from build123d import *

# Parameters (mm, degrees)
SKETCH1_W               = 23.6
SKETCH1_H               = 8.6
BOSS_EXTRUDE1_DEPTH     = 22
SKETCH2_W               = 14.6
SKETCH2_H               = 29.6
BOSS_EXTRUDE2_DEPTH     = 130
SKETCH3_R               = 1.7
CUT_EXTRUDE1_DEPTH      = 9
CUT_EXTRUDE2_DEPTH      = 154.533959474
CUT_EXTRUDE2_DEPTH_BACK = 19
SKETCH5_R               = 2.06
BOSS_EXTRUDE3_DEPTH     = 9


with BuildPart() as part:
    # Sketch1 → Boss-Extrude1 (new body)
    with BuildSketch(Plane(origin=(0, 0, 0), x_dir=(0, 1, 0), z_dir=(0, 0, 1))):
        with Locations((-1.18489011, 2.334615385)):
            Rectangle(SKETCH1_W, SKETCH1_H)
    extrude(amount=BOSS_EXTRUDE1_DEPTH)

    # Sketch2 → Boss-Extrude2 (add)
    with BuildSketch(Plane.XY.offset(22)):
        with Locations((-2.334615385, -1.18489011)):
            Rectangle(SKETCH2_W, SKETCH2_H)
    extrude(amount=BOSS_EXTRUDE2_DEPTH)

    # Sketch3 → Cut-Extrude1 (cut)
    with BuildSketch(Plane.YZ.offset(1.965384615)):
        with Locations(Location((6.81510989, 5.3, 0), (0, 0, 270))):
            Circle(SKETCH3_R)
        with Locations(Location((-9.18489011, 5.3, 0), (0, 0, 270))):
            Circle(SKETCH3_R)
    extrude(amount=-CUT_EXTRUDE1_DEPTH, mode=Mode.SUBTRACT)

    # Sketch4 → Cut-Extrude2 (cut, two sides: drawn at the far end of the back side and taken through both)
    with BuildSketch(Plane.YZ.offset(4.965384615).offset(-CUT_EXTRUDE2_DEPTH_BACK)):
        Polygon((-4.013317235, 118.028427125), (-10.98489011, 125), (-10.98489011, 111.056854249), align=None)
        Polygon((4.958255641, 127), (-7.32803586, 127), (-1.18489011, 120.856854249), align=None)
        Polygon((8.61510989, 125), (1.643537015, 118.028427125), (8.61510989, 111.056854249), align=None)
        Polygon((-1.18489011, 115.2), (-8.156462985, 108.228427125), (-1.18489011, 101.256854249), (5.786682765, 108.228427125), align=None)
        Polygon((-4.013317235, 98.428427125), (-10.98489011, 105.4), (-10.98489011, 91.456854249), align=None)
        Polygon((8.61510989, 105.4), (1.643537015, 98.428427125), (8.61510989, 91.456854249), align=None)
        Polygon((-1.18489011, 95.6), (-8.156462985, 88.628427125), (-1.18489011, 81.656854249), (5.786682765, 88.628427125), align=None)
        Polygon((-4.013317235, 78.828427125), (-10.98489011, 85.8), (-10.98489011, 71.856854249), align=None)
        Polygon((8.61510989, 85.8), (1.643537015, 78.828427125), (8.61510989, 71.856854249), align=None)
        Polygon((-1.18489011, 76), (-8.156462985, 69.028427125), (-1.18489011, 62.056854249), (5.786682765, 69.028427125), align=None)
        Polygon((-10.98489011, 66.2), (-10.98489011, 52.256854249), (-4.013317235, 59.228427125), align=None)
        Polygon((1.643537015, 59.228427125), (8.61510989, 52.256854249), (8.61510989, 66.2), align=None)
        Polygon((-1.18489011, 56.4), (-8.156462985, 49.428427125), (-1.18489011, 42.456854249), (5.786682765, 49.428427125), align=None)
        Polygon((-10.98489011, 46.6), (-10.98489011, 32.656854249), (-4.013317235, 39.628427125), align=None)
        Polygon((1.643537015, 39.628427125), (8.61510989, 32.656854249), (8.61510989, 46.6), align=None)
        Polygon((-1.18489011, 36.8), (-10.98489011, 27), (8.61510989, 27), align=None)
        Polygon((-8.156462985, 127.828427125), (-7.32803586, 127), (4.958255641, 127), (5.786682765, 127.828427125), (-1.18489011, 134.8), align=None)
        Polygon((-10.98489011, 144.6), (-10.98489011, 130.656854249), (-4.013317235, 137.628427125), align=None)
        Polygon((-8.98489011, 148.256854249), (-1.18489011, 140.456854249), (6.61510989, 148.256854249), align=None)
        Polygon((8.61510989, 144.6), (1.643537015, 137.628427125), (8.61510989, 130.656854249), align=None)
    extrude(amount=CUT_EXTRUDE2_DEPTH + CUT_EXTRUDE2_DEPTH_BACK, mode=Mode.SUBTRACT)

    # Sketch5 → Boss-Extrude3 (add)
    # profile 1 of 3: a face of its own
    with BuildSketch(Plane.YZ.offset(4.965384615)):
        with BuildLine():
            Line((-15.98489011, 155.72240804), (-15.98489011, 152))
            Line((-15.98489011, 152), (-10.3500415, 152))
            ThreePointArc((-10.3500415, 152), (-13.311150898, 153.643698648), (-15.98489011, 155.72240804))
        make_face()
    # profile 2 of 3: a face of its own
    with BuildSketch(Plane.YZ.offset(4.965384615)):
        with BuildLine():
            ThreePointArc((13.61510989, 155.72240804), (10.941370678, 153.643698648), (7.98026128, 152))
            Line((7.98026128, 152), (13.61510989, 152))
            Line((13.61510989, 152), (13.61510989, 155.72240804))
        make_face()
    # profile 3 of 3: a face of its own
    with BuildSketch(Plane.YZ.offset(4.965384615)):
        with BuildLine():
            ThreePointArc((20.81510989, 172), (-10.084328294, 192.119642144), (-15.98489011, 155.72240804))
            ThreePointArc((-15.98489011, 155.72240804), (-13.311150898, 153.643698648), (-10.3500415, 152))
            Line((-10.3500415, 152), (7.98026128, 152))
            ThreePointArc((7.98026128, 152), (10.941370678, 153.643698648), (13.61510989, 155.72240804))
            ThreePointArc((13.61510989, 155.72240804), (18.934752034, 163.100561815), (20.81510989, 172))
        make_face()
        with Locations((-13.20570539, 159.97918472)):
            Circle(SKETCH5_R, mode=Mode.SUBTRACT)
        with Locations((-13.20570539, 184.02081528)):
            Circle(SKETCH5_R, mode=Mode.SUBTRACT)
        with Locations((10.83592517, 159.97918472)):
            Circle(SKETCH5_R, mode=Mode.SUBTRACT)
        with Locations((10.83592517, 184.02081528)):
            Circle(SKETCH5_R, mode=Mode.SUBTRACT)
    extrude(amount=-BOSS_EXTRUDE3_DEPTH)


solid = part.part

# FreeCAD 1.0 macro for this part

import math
import FreeCAD as App
import Part
import Sketcher
from FreeCAD import Vector

doc = App.newDocument("Part")
params = doc.addObject("Spreadsheet::Sheet", "Params")
for row, (alias, value) in enumerate([
    ("sketch1_width", "8.6 mm"),
    ("sketch1_height", "23.6 mm"),
    ("pad1_length", "22 mm"),
    ("sketch2_width", "14.6 mm"),
    ("sketch2_height", "29.6 mm"),
    ("pad2_length", "130 mm"),
    ("sketch3_diameter", "3.4 mm"),
    ("pocket1_length", "9 mm"),
    ("sketch4_width", "19.6 mm"),
    ("sketch4_width2", "15.6 mm"),
    ("sketch5_radius", "22 mm"),
    ("sketch5_diameter", "4.12 mm"),
    ("sketch5_width", "29.6 mm"),
    ("pad3_length", "9 mm"),
], start=1):
    params.set(f"A{row}", alias)
    params.set(f"B{row}", "=" + value)
    params.setAlias(f"B{row}", alias)

body = doc.addObject("PartDesign::Body", "Body")

# Sketch on XY plane
sketch1 = body.newObject("Sketcher::SketchObject", "Sketch")
sketch1.AttachmentSupport = (doc.getObject("XY_Plane"), [""])
sketch1.MapMode = "FlatFace"
sketch1.addGeometry([
    Part.LineSegment(Vector(-7, -13, 0), Vector(2, -13, 0)),
    Part.LineSegment(Vector(2, -13, 0), Vector(2, 11, 0)),
    Part.LineSegment(Vector(2, 11, 0), Vector(-7, 11, 0)),
    Part.LineSegment(Vector(-7, 11, 0), Vector(-7, -13, 0)),
], False)
sketch1.addConstraint([
    Sketcher.Constraint("Coincident", 0, 2, 1, 1),
    Sketcher.Constraint("Coincident", 1, 2, 2, 1),
    Sketcher.Constraint("Coincident", 2, 2, 3, 1),
    Sketcher.Constraint("Coincident", 3, 2, 0, 1),
    Sketcher.Constraint("Horizontal", 0),
    Sketcher.Constraint("Vertical", 1),
    Sketcher.Constraint("Horizontal", 2),
    Sketcher.Constraint("Vertical", 3),
    Sketcher.Constraint("DistanceX", 0, 1, 0, 2, 8.6),
    Sketcher.Constraint("DistanceY", 1, 1, 1, 2, 23.6),
    Sketcher.Constraint("DistanceY", 0, 2, -1, 1, 12.98489),
    Sketcher.Constraint("DistanceX", -1, 1, 0, 2, 1.965385),
])
sketch1.setExpression("Constraints[8]", "Params.sketch1_width")
sketch1.setExpression("Constraints[9]", "Params.sketch1_height")
pad1 = body.newObject("PartDesign::Pad", "Pad")
pad1.Profile = sketch1
pad1.setExpression("Length", "Params.pad1_length")

# Sketch on XY plane
sketch2 = body.newObject("Sketcher::SketchObject", "Sketch001")
sketch2.AttachmentSupport = (doc.getObject("XY_Plane"), [""])
sketch2.MapMode = "FlatFace"
sketch2.AttachmentOffset = App.Placement(Vector(0, 0, 22), App.Rotation())
sketch2.addGeometry([
    Part.LineSegment(Vector(-10, 14, 0), Vector(-10, -16, 0)),
    Part.LineSegment(Vector(-10, -16, 0), Vector(5, -16, 0)),
    Part.LineSegment(Vector(5, -16, 0), Vector(5, 14, 0)),
    Part.LineSegment(Vector(5, 14, 0), Vector(-10, 14, 0)),
], False)
sketch2.addConstraint([
    Sketcher.Constraint("Coincident", 0, 2, 1, 1),
    Sketcher.Constraint("Coincident", 1, 2, 2, 1),
    Sketcher.Constraint("Coincident", 2, 2, 3, 1),
    Sketcher.Constraint("Coincident", 3, 2, 0, 1),
    Sketcher.Constraint("Vertical", 0),
    Sketcher.Constraint("Horizontal", 1),
    Sketcher.Constraint("Vertical", 2),
    Sketcher.Constraint("Horizontal", 3),
    Sketcher.Constraint("DistanceX", 1, 1, 1, 2, 14.6),
    Sketcher.Constraint("DistanceY", 0, 2, 0, 1, 29.6),
    Sketcher.Constraint("DistanceY", 0, 2, -1, 1, 15.98489),
    Sketcher.Constraint("DistanceX", 0, 2, -1, 1, 9.634615),
])
sketch2.setExpression("Constraints[8]", "Params.sketch2_width")
sketch2.setExpression("Constraints[9]", "Params.sketch2_height")
pad2 = body.newObject("PartDesign::Pad", "Pad001")
pad2.Profile = sketch2
pad2.setExpression("Length", "Params.pad2_length")

# Sketch on YZ plane
sketch3 = body.newObject("Sketcher::SketchObject", "Sketch002")
sketch3.AttachmentSupport = (doc.getObject("YZ_Plane"), [""])
sketch3.MapMode = "FlatFace"
sketch3.AttachmentOffset = App.Placement(Vector(0, 0, 1.965385), App.Rotation())
sketch3.addGeometry([
    Part.Circle(Vector(6.8, 5.3, 0), Vector(0, 0, 1), 1.7),
    Part.Circle(Vector(-9.2, 5.3, 0), Vector(0, 0, 1), 1.7),
], False)
sketch3.addConstraint([
    Sketcher.Constraint("Equal", 0, 1),
    Sketcher.Constraint("Horizontal", 0, 3, 1, 3),
    Sketcher.Constraint("Diameter", 0, 3.4),
    Sketcher.Constraint("DistanceX", 1, 3, 0, 3, 16.0),
    Sketcher.Constraint("DistanceY", -1, 1, 0, 3, 5.3),
    Sketcher.Constraint("DistanceX", -1, 1, 0, 3, 6.81511),
])
sketch3.setExpression("Constraints[2]", "Params.sketch3_diameter")
pocket1 = body.newObject("PartDesign::Pocket", "Pocket")
pocket1.Profile = sketch3
pocket1.setExpression("Length", "Params.pocket1_length")

# Sketch on YZ plane
sketch4 = body.newObject("Sketcher::SketchObject", "Sketch003")
sketch4.AttachmentSupport = (doc.getObject("YZ_Plane"), [""])
sketch4.MapMode = "FlatFace"
sketch4.AttachmentOffset = App.Placement(Vector(0, 0, 4.965385), App.Rotation())
sketch4.addGeometry([
    Part.LineSegment(Vector(-4, 118, 0), Vector(-11, 125, 0)),  # 0
    Part.LineSegment(Vector(-11, 125, 0), Vector(-11, 111.1, 0)),  # 1
    Part.LineSegment(Vector(-11, 111.1, 0), Vector(-4, 118, 0)),  # 2
    Part.LineSegment(Vector(-7.3, 127, 0), Vector(-1.2, 120.9, 0)),  # 3
    Part.LineSegment(Vector(-1.2, 120.9, 0), Vector(5, 127, 0)),  # 4
    Part.LineSegment(Vector(5, 127, 0), Vector(5.8, 127.8, 0)),  # 5
    Part.LineSegment(Vector(5.8, 127.8, 0), Vector(-1.2, 134.8, 0)),  # 6
    Part.LineSegment(Vector(-1.2, 134.8, 0), Vector(-8.2, 127.8, 0)),  # 7
    Part.LineSegment(Vector(-8.2, 127.8, 0), Vector(-7.3, 127, 0)),  # 8
    Part.LineSegment(Vector(8.6, 125, 0), Vector(1.6, 118, 0)),  # 9
    Part.LineSegment(Vector(1.6, 118, 0), Vector(8.6, 111.1, 0)),  # 10
    Part.LineSegment(Vector(8.6, 111.1, 0), Vector(8.6, 125, 0)),  # 11
    Part.LineSegment(Vector(-1.2, 115.2, 0), Vector(-8.2, 108.2, 0)),  # 12
    Part.LineSegment(Vector(-8.2, 108.2, 0), Vector(-1.2, 101.3, 0)),  # 13
    Part.LineSegment(Vector(-1.2, 101.3, 0), Vector(5.8, 108.2, 0)),  # 14
    Part.LineSegment(Vector(5.8, 108.2, 0), Vector(-1.2, 115.2, 0)),  # 15
    Part.LineSegment(Vector(-4, 98.4, 0), Vector(-11, 105.4, 0)),  # 16
    Part.LineSegment(Vector(-11, 105.4, 0), Vector(-11, 91.5, 0)),  # 17
    Part.LineSegment(Vector(-11, 91.5, 0), Vector(-4, 98.4, 0)),  # 18
    Part.LineSegment(Vector(8.6, 105.4, 0), Vector(1.6, 98.4, 0)),  # 19
    Part.LineSegment(Vector(1.6, 98.4, 0), Vector(8.6, 91.5, 0)),  # 20
    Part.LineSegment(Vector(8.6, 91.5, 0), Vector(8.6, 105.4, 0)),  # 21
    Part.LineSegment(Vector(-1.2, 95.6, 0), Vector(-8.2, 88.6, 0)),  # 22
    Part.LineSegment(Vector(-8.2, 88.6, 0), Vector(-1.2, 81.7, 0)),  # 23
    Part.LineSegment(Vector(-1.2, 81.7, 0), Vector(5.8, 88.6, 0)),  # 24
    Part.LineSegment(Vector(5.8, 88.6, 0), Vector(-1.2, 95.6, 0)),  # 25
    Part.LineSegment(Vector(-4, 78.8, 0), Vector(-11, 85.8, 0)),  # 26
    Part.LineSegment(Vector(-11, 85.8, 0), Vector(-11, 71.9, 0)),  # 27
    Part.LineSegment(Vector(-11, 71.9, 0), Vector(-4, 78.8, 0)),  # 28
    Part.LineSegment(Vector(8.6, 85.8, 0), Vector(1.6, 78.8, 0)),  # 29
    Part.LineSegment(Vector(1.6, 78.8, 0), Vector(8.6, 71.9, 0)),  # 30
    Part.LineSegment(Vector(8.6, 71.9, 0), Vector(8.6, 85.8, 0)),  # 31
    Part.LineSegment(Vector(-1.2, 76, 0), Vector(-8.2, 69, 0)),  # 32
    Part.LineSegment(Vector(-8.2, 69, 0), Vector(-1.2, 62.1, 0)),  # 33
    Part.LineSegment(Vector(-1.2, 62.1, 0), Vector(5.8, 69, 0)),  # 34
    Part.LineSegment(Vector(5.8, 69, 0), Vector(-1.2, 76, 0)),  # 35
    Part.LineSegment(Vector(-11, 66.2, 0), Vector(-11, 52.3, 0)),  # 36
    Part.LineSegment(Vector(-11, 52.3, 0), Vector(-4, 59.2, 0)),  # 37
    Part.LineSegment(Vector(-4, 59.2, 0), Vector(-11, 66.2, 0)),  # 38
    Part.LineSegment(Vector(1.6, 59.2, 0), Vector(8.6, 52.3, 0)),  # 39
    Part.LineSegment(Vector(8.6, 52.3, 0), Vector(8.6, 66.2, 0)),  # 40
    Part.LineSegment(Vector(8.6, 66.2, 0), Vector(1.6, 59.2, 0)),  # 41
    Part.LineSegment(Vector(-1.2, 56.4, 0), Vector(-8.2, 49.4, 0)),  # 42
    Part.LineSegment(Vector(-8.2, 49.4, 0), Vector(-1.2, 42.5, 0)),  # 43
    Part.LineSegment(Vector(-1.2, 42.5, 0), Vector(5.8, 49.4, 0)),  # 44
    Part.LineSegment(Vector(5.8, 49.4, 0), Vector(-1.2, 56.4, 0)),  # 45
    Part.LineSegment(Vector(-11, 46.6, 0), Vector(-11, 32.7, 0)),  # 46
    Part.LineSegment(Vector(-11, 32.7, 0), Vector(-4, 39.6, 0)),  # 47
    Part.LineSegment(Vector(-4, 39.6, 0), Vector(-11, 46.6, 0)),  # 48
    Part.LineSegment(Vector(1.6, 39.6, 0), Vector(8.6, 32.7, 0)),  # 49
    Part.LineSegment(Vector(8.6, 32.7, 0), Vector(8.6, 46.6, 0)),  # 50
    Part.LineSegment(Vector(8.6, 46.6, 0), Vector(1.6, 39.6, 0)),  # 51
    Part.LineSegment(Vector(-1.2, 36.8, 0), Vector(-11, 27, 0)),  # 52
    Part.LineSegment(Vector(-11, 27, 0), Vector(8.6, 27, 0)),  # 53
    Part.LineSegment(Vector(8.6, 27, 0), Vector(-1.2, 36.8, 0)),  # 54
    Part.LineSegment(Vector(-11, 144.6, 0), Vector(-11, 130.7, 0)),  # 55
    Part.LineSegment(Vector(-11, 130.7, 0), Vector(-4, 137.6, 0)),  # 56
    Part.LineSegment(Vector(-4, 137.6, 0), Vector(-11, 144.6, 0)),  # 57
    Part.LineSegment(Vector(-9, 148.3, 0), Vector(-1.2, 140.5, 0)),  # 58
    Part.LineSegment(Vector(-1.2, 140.5, 0), Vector(6.6, 148.3, 0)),  # 59
    Part.LineSegment(Vector(6.6, 148.3, 0), Vector(-9, 148.3, 0)),  # 60
    Part.LineSegment(Vector(8.6, 144.6, 0), Vector(1.6, 137.6, 0)),  # 61
    Part.LineSegment(Vector(1.6, 137.6, 0), Vector(8.6, 130.7, 0)),  # 62
    Part.LineSegment(Vector(8.6, 130.7, 0), Vector(8.6, 144.6, 0)),  # 63
], False)
sketch4.addConstraint([
    Sketcher.Constraint("Coincident", 0, 2, 1, 1),
    Sketcher.Constraint("Coincident", 1, 2, 2, 1),
    Sketcher.Constraint("Coincident", 2, 2, 0, 1),
    Sketcher.Constraint("Coincident", 3, 2, 4, 1),
    Sketcher.Constraint("Coincident", 4, 2, 5, 1),
    Sketcher.Constraint("Coincident", 5, 2, 6, 1),
    Sketcher.Constraint("Coincident", 6, 2, 7, 1),
    Sketcher.Constraint("Coincident", 7, 2, 8, 1),
    Sketcher.Constraint("Coincident", 8, 2, 3, 1),
    Sketcher.Constraint("Coincident", 9, 2, 10, 1),
    Sketcher.Constraint("Coincident", 10, 2, 11, 1),
    Sketcher.Constraint("Coincident", 11, 2, 9, 1),
    Sketcher.Constraint("Coincident", 12, 2, 13, 1),
    Sketcher.Constraint("Coincident", 13, 2, 14, 1),
    Sketcher.Constraint("Coincident", 14, 2, 15, 1),
    Sketcher.Constraint("Coincident", 15, 2, 12, 1),
    Sketcher.Constraint("Coincident", 16, 2, 17, 1),
    Sketcher.Constraint("Coincident", 17, 2, 18, 1),
    Sketcher.Constraint("Coincident", 18, 2, 16, 1),
    Sketcher.Constraint("Coincident", 19, 2, 20, 1),
    Sketcher.Constraint("Coincident", 20, 2, 21, 1),
    Sketcher.Constraint("Coincident", 21, 2, 19, 1),
    Sketcher.Constraint("Coincident", 22, 2, 23, 1),
    Sketcher.Constraint("Coincident", 23, 2, 24, 1),
    Sketcher.Constraint("Coincident", 24, 2, 25, 1),
    Sketcher.Constraint("Coincident", 25, 2, 22, 1),
    Sketcher.Constraint("Coincident", 26, 2, 27, 1),
    Sketcher.Constraint("Coincident", 27, 2, 28, 1),
    Sketcher.Constraint("Coincident", 28, 2, 26, 1),
    Sketcher.Constraint("Coincident", 29, 2, 30, 1),
    Sketcher.Constraint("Coincident", 30, 2, 31, 1),
    Sketcher.Constraint("Coincident", 31, 2, 29, 1),
    Sketcher.Constraint("Coincident", 32, 2, 33, 1),
    Sketcher.Constraint("Coincident", 33, 2, 34, 1),
    Sketcher.Constraint("Coincident", 34, 2, 35, 1),
    Sketcher.Constraint("Coincident", 35, 2, 32, 1),
    Sketcher.Constraint("Coincident", 36, 2, 37, 1),
    Sketcher.Constraint("Coincident", 37, 2, 38, 1),
    Sketcher.Constraint("Coincident", 38, 2, 36, 1),
    Sketcher.Constraint("Coincident", 39, 2, 40, 1),
    Sketcher.Constraint("Coincident", 40, 2, 41, 1),
    Sketcher.Constraint("Coincident", 41, 2, 39, 1),
    Sketcher.Constraint("Coincident", 42, 2, 43, 1),
    Sketcher.Constraint("Coincident", 43, 2, 44, 1),
    Sketcher.Constraint("Coincident", 44, 2, 45, 1),
    Sketcher.Constraint("Coincident", 45, 2, 42, 1),
    Sketcher.Constraint("Coincident", 46, 2, 47, 1),
    Sketcher.Constraint("Coincident", 47, 2, 48, 1),
    Sketcher.Constraint("Coincident", 48, 2, 46, 1),
    Sketcher.Constraint("Coincident", 49, 2, 50, 1),
    Sketcher.Constraint("Coincident", 50, 2, 51, 1),
    Sketcher.Constraint("Coincident", 51, 2, 49, 1),
    Sketcher.Constraint("Coincident", 52, 2, 53, 1),
    Sketcher.Constraint("Coincident", 53, 2, 54, 1),
    Sketcher.Constraint("Coincident", 54, 2, 52, 1),
    Sketcher.Constraint("Coincident", 55, 2, 56, 1),
    Sketcher.Constraint("Coincident", 56, 2, 57, 1),
    Sketcher.Constraint("Coincident", 57, 2, 55, 1),
    Sketcher.Constraint("Coincident", 58, 2, 59, 1),
    Sketcher.Constraint("Coincident", 59, 2, 60, 1),
    Sketcher.Constraint("Coincident", 60, 2, 58, 1),
    Sketcher.Constraint("Coincident", 61, 2, 62, 1),
    Sketcher.Constraint("Coincident", 62, 2, 63, 1),
    Sketcher.Constraint("Coincident", 63, 2, 61, 1),
    Sketcher.Constraint("Vertical", 1),
    Sketcher.Constraint("Vertical", 11),
    Sketcher.Constraint("Vertical", 17),
    Sketcher.Constraint("Vertical", 21),
    Sketcher.Constraint("Vertical", 27),
    Sketcher.Constraint("Vertical", 31),
    Sketcher.Constraint("Vertical", 36),
    Sketcher.Constraint("Vertical", 40),
    Sketcher.Constraint("Vertical", 46),
    Sketcher.Constraint("Vertical", 50),
    Sketcher.Constraint("Horizontal", 53),
    Sketcher.Constraint("Vertical", 55),
    Sketcher.Constraint("Horizontal", 60),
    Sketcher.Constraint("Vertical", 63),
    Sketcher.Constraint("Perpendicular", 0, 2),
    Sketcher.Constraint("Perpendicular", 2, 3),
    Sketcher.Constraint("Perpendicular", 3, 4),
    Sketcher.Constraint("Parallel", 4, 5),
    Sketcher.Constraint("Perpendicular", 5, 6),
    Sketcher.Constraint("Perpendicular", 6, 7),
    Sketcher.Constraint("Perpendicular", 7, 8),
    Sketcher.Constraint("Perpendicular", 8, 9),
    Sketcher.Constraint("Perpendicular", 9, 10),
    Sketcher.Constraint("Perpendicular", 10, 12),
    Sketcher.Constraint("Perpendicular", 12, 13),
    Sketcher.Constraint("Perpendicular", 13, 14),
    Sketcher.Constraint("Perpendicular", 14, 15),
    Sketcher.Constraint("Parallel", 15, 16),
    Sketcher.Constraint("Perpendicular", 16, 18),
    Sketcher.Constraint("Parallel", 18, 19),
    Sketcher.Constraint("Perpendicular", 19, 20),
    Sketcher.Constraint("Perpendicular", 20, 22),
    Sketcher.Constraint("Perpendicular", 22, 23),
    Sketcher.Constraint("Perpendicular", 23, 24),
    Sketcher.Constraint("Perpendicular", 24, 25),
    Sketcher.Constraint("Parallel", 25, 26),
    Sketcher.Constraint("Perpendicular", 26, 28),
    Sketcher.Constraint("Parallel", 28, 29),
    Sketcher.Constraint("Perpendicular", 29, 30),
    Sketcher.Constraint("Perpendicular", 30, 32),
    Sketcher.Constraint("Perpendicular", 32, 33),
    Sketcher.Constraint("Perpendicular", 33, 34),
    Sketcher.Constraint("Perpendicular", 34, 35),
    Sketcher.Constraint("Perpendicular", 35, 37),
    Sketcher.Constraint("Perpendicular", 37, 38),
    Sketcher.Constraint("Parallel", 38, 39),
    Sketcher.Constraint("Perpendicular", 39, 41),
    Sketcher.Constraint("Parallel", 41, 42),
    Sketcher.Constraint("Perpendicular", 42, 43),
    Sketcher.Constraint("Perpendicular", 43, 44),
    Sketcher.Constraint("Perpendicular", 44, 45),
    Sketcher.Constraint("Perpendicular", 45, 47),
    Sketcher.Constraint("Perpendicular", 47, 48),
    Sketcher.Constraint("Parallel", 48, 49),
    Sketcher.Constraint("Perpendicular", 49, 51),
    Sketcher.Constraint("Parallel", 51, 52),
    Sketcher.Constraint("Perpendicular", 52, 54),
    Sketcher.Constraint("Perpendicular", 54, 56),
    Sketcher.Constraint("Perpendicular", 56, 57),
    Sketcher.Constraint("Parallel", 57, 58),
    Sketcher.Constraint("Perpendicular", 58, 59),
    Sketcher.Constraint("Parallel", 59, 61),
    Sketcher.Constraint("Perpendicular", 61, 62),
    Sketcher.Constraint("Horizontal", 5, 2, 7, 2),
    Sketcher.Constraint("Horizontal", 4, 2, 8, 2),
    Sketcher.Constraint("Horizontal", 2, 2, 9, 2),
    Sketcher.Constraint("Horizontal", 1, 2, 10, 2),
    Sketcher.Constraint("Horizontal", 0, 2, 11, 2),
    Sketcher.Constraint("Horizontal", 12, 2, 14, 2),
    Sketcher.Constraint("Horizontal", 18, 2, 19, 2),
    Sketcher.Constraint("Horizontal", 17, 2, 20, 2),
    Sketcher.Constraint("Horizontal", 22, 2, 24, 2),
    Sketcher.Constraint("Horizontal", 28, 2, 29, 2),
    Sketcher.Constraint("Horizontal", 27, 2, 30, 2),
    Sketcher.Constraint("Horizontal", 32, 2, 34, 2),
    Sketcher.Constraint("Horizontal", 36, 2, 39, 2),
    Sketcher.Constraint("Horizontal", 38, 2, 40, 2),
    Sketcher.Constraint("Horizontal", 42, 2, 44, 2),
    Sketcher.Constraint("Horizontal", 46, 2, 49, 2),
    Sketcher.Constraint("Horizontal", 48, 2, 50, 2),
    Sketcher.Constraint("Horizontal", 56, 2, 61, 2),
    Sketcher.Constraint("Horizontal", 55, 2, 62, 2),
    Sketcher.Constraint("Vertical", 7, 2, 12, 2),
    Sketcher.Constraint("Vertical", 6, 2, 13, 2),
    Sketcher.Constraint("Vertical", 1, 2, 16, 2),
    Sketcher.Constraint("Vertical", 2, 2, 18, 2),
    Sketcher.Constraint("Vertical", 9, 2, 19, 2),
    Sketcher.Constraint("Vertical", 12, 2, 22, 2),
    Sketcher.Constraint("Vertical", 15, 2, 23, 2),
    Sketcher.Constraint("Vertical", 17, 2, 26, 2),
    Sketcher.Constraint("Vertical", 18, 2, 28, 2),
    Sketcher.Constraint("Vertical", 19, 2, 29, 2),
    Sketcher.Constraint("Vertical", 22, 2, 32, 2),
    Sketcher.Constraint("Vertical", 25, 2, 33, 2),
    Sketcher.Constraint("Vertical", 27, 2, 36, 2),
    Sketcher.Constraint("Vertical", 28, 2, 37, 2),
    Sketcher.Constraint("Vertical", 31, 2, 39, 2),
    Sketcher.Constraint("Vertical", 32, 2, 42, 2),
    Sketcher.Constraint("Vertical", 35, 2, 43, 2),
    Sketcher.Constraint("Vertical", 38, 2, 46, 2),
    Sketcher.Constraint("Vertical", 37, 2, 47, 2),
    Sketcher.Constraint("Vertical", 40, 2, 49, 2),
    Sketcher.Constraint("Vertical", 48, 2, 52, 2),
    Sketcher.Constraint("Vertical", 50, 2, 53, 2),
    Sketcher.Constraint("Vertical", 45, 2, 54, 2),
    Sketcher.Constraint("Vertical", 52, 2, 55, 2),
    Sketcher.Constraint("Vertical", 47, 2, 56, 2),
    Sketcher.Constraint("Vertical", 54, 2, 58, 2),
    Sketcher.Constraint("Vertical", 51, 2, 61, 2),
    Sketcher.Constraint("Equal", 2, 6),
    Sketcher.Constraint("DistanceX", 53, 1, 53, 2, 19.6),
    Sketcher.Constraint("DistanceX", 60, 2, 60, 1, 15.6),
    Sketcher.Constraint("DistanceY", -1, 1, 0, 2, 125.0),
    Sketcher.Constraint("DistanceY", -1, 1, 4, 2, 127.0),
    Sketcher.Constraint("DistanceY", -1, 1, 35, 2, 76.0),
    Sketcher.Constraint("DistanceY", -1, 1, 52, 2, 27.0),
    Sketcher.Constraint("DistanceY", -1, 1, 6, 2, 134.8),
    Sketcher.Constraint("DistanceY", -1, 1, 15, 2, 115.2),
    Sketcher.Constraint("DistanceY", -1, 1, 16, 2, 105.4),
    Sketcher.Constraint("DistanceY", -1, 1, 25, 2, 95.6),
    Sketcher.Constraint("DistanceY", -1, 1, 26, 2, 85.8),
    Sketcher.Constraint("DistanceY", -1, 1, 38, 2, 66.2),
    Sketcher.Constraint("DistanceY", -1, 1, 45, 2, 56.4),
    Sketcher.Constraint("DistanceY", -1, 1, 48, 2, 46.6),
    Sketcher.Constraint("DistanceY", -1, 1, 57, 2, 144.6),
    Sketcher.Constraint("Distance", 3, 8.68772),
    Sketcher.Constraint("DistanceX", 0, 2, -1, 1, 10.98489),
    Sketcher.Constraint("DistanceY", -1, 1, 58, 2, 140.456854),
])
sketch4.setExpression("Constraints[174]", "Params.sketch4_width")
sketch4.setExpression("Constraints[175]", "Params.sketch4_width2")
pocket2 = body.newObject("PartDesign::Pocket", "Pocket001")
pocket2.Profile = sketch4
pocket2.Type = "ThroughAll"
pocket2.Midplane = True

# Sketch on YZ plane
sketch5 = body.newObject("Sketcher::SketchObject", "Sketch004")
sketch5.AttachmentSupport = (doc.getObject("YZ_Plane"), [""])
sketch5.MapMode = "FlatFace"
sketch5.AttachmentOffset = App.Placement(Vector(0, 0, 4.965385), App.Rotation())
sketch5.addGeometry([
    Part.LineSegment(Vector(-16, 155.7, 0), Vector(-16, 152, 0)),  # 0
    Part.LineSegment(Vector(-16, 152, 0), Vector(13.6, 152, 0)),  # 1
    Part.LineSegment(Vector(13.6, 152, 0), Vector(13.6, 155.7, 0)),  # 2
    Part.ArcOfCircle(Part.Circle(Vector(-1.2, 172, 0), Vector(0, 0, 1), 22), math.radians(-48), math.radians(0)),  # 3
    Part.ArcOfCircle(Part.Circle(Vector(-1.2, 172, 0), Vector(0, 0, 1), 22), math.radians(0), math.radians(228)),  # 4
    Part.Circle(Vector(10.8, 184, 0), Vector(0, 0, 1), 2.1),  # 5
    Part.Circle(Vector(-13.2, 160, 0), Vector(0, 0, 1), 2.1),  # 6
    Part.Circle(Vector(10.8, 160, 0), Vector(0, 0, 1), 2.1),  # 7
    Part.Circle(Vector(-13.2, 184, 0), Vector(0, 0, 1), 2.1),  # 8
], False)
sketch5.addConstraint([
    Sketcher.Constraint("Coincident", 0, 2, 1, 1),
    Sketcher.Constraint("Coincident", 1, 2, 2, 1),
    Sketcher.Constraint("Coincident", 2, 2, 3, 1),
    Sketcher.Constraint("Tangent", 3, 2, 4, 1),
    Sketcher.Constraint("Coincident", 4, 2, 0, 1),
    Sketcher.Constraint("Vertical", 0),
    Sketcher.Constraint("Horizontal", 1),
    Sketcher.Constraint("Vertical", 2),
    Sketcher.Constraint("Equal", 3, 4),
    Sketcher.Constraint("Equal", 5, 6),
    Sketcher.Constraint("Equal", 6, 7),
    Sketcher.Constraint("Equal", 7, 8),
    Sketcher.Constraint("Horizontal", 6, 3, 7, 3),
    Sketcher.Constraint("Horizontal", 5, 3, 8, 3),
    Sketcher.Constraint("Horizontal", 4, 3, 3, 2),
    Sketcher.Constraint("Horizontal", 2, 2, 4, 2),
    Sketcher.Constraint("Vertical", 5, 3, 7, 3),
    Sketcher.Constraint("Vertical", 6, 3, 8, 3),
    Sketcher.Constraint("Radius", 3, 22.0),
    Sketcher.Constraint("Diameter", 5, 4.12),
    Sketcher.Constraint("DistanceX", 1, 1, 1, 2, 29.6),
    Sketcher.Constraint("DistanceY", -1, 1, 3, 3, 172.0),
    Sketcher.Constraint("DistanceY", -1, 1, 0, 2, 152.0),
    Sketcher.Constraint("DistanceX", 3, 3, -1, 1, 1.18489),
    Sketcher.Constraint("DistanceX", 6, 3, 5, 3, 24.041631),
    Sketcher.Constraint("DistanceY", 6, 3, 5, 3, 24.041631),
    Sketcher.Constraint("DistanceX", -1, 1, 5, 3, 10.835925),
    Sketcher.Constraint("DistanceY", -1, 1, 5, 3, 184.020815),
])
sketch5.setExpression("Constraints[18]", "Params.sketch5_radius")
sketch5.setExpression("Constraints[19]", "Params.sketch5_diameter")
sketch5.setExpression("Constraints[20]", "Params.sketch5_width")
pad3 = body.newObject("PartDesign::Pad", "Pad002")
pad3.Profile = sketch5
pad3.setExpression("Length", "Params.pad3_length")
pad3.Reversed = True

doc.recompute()
